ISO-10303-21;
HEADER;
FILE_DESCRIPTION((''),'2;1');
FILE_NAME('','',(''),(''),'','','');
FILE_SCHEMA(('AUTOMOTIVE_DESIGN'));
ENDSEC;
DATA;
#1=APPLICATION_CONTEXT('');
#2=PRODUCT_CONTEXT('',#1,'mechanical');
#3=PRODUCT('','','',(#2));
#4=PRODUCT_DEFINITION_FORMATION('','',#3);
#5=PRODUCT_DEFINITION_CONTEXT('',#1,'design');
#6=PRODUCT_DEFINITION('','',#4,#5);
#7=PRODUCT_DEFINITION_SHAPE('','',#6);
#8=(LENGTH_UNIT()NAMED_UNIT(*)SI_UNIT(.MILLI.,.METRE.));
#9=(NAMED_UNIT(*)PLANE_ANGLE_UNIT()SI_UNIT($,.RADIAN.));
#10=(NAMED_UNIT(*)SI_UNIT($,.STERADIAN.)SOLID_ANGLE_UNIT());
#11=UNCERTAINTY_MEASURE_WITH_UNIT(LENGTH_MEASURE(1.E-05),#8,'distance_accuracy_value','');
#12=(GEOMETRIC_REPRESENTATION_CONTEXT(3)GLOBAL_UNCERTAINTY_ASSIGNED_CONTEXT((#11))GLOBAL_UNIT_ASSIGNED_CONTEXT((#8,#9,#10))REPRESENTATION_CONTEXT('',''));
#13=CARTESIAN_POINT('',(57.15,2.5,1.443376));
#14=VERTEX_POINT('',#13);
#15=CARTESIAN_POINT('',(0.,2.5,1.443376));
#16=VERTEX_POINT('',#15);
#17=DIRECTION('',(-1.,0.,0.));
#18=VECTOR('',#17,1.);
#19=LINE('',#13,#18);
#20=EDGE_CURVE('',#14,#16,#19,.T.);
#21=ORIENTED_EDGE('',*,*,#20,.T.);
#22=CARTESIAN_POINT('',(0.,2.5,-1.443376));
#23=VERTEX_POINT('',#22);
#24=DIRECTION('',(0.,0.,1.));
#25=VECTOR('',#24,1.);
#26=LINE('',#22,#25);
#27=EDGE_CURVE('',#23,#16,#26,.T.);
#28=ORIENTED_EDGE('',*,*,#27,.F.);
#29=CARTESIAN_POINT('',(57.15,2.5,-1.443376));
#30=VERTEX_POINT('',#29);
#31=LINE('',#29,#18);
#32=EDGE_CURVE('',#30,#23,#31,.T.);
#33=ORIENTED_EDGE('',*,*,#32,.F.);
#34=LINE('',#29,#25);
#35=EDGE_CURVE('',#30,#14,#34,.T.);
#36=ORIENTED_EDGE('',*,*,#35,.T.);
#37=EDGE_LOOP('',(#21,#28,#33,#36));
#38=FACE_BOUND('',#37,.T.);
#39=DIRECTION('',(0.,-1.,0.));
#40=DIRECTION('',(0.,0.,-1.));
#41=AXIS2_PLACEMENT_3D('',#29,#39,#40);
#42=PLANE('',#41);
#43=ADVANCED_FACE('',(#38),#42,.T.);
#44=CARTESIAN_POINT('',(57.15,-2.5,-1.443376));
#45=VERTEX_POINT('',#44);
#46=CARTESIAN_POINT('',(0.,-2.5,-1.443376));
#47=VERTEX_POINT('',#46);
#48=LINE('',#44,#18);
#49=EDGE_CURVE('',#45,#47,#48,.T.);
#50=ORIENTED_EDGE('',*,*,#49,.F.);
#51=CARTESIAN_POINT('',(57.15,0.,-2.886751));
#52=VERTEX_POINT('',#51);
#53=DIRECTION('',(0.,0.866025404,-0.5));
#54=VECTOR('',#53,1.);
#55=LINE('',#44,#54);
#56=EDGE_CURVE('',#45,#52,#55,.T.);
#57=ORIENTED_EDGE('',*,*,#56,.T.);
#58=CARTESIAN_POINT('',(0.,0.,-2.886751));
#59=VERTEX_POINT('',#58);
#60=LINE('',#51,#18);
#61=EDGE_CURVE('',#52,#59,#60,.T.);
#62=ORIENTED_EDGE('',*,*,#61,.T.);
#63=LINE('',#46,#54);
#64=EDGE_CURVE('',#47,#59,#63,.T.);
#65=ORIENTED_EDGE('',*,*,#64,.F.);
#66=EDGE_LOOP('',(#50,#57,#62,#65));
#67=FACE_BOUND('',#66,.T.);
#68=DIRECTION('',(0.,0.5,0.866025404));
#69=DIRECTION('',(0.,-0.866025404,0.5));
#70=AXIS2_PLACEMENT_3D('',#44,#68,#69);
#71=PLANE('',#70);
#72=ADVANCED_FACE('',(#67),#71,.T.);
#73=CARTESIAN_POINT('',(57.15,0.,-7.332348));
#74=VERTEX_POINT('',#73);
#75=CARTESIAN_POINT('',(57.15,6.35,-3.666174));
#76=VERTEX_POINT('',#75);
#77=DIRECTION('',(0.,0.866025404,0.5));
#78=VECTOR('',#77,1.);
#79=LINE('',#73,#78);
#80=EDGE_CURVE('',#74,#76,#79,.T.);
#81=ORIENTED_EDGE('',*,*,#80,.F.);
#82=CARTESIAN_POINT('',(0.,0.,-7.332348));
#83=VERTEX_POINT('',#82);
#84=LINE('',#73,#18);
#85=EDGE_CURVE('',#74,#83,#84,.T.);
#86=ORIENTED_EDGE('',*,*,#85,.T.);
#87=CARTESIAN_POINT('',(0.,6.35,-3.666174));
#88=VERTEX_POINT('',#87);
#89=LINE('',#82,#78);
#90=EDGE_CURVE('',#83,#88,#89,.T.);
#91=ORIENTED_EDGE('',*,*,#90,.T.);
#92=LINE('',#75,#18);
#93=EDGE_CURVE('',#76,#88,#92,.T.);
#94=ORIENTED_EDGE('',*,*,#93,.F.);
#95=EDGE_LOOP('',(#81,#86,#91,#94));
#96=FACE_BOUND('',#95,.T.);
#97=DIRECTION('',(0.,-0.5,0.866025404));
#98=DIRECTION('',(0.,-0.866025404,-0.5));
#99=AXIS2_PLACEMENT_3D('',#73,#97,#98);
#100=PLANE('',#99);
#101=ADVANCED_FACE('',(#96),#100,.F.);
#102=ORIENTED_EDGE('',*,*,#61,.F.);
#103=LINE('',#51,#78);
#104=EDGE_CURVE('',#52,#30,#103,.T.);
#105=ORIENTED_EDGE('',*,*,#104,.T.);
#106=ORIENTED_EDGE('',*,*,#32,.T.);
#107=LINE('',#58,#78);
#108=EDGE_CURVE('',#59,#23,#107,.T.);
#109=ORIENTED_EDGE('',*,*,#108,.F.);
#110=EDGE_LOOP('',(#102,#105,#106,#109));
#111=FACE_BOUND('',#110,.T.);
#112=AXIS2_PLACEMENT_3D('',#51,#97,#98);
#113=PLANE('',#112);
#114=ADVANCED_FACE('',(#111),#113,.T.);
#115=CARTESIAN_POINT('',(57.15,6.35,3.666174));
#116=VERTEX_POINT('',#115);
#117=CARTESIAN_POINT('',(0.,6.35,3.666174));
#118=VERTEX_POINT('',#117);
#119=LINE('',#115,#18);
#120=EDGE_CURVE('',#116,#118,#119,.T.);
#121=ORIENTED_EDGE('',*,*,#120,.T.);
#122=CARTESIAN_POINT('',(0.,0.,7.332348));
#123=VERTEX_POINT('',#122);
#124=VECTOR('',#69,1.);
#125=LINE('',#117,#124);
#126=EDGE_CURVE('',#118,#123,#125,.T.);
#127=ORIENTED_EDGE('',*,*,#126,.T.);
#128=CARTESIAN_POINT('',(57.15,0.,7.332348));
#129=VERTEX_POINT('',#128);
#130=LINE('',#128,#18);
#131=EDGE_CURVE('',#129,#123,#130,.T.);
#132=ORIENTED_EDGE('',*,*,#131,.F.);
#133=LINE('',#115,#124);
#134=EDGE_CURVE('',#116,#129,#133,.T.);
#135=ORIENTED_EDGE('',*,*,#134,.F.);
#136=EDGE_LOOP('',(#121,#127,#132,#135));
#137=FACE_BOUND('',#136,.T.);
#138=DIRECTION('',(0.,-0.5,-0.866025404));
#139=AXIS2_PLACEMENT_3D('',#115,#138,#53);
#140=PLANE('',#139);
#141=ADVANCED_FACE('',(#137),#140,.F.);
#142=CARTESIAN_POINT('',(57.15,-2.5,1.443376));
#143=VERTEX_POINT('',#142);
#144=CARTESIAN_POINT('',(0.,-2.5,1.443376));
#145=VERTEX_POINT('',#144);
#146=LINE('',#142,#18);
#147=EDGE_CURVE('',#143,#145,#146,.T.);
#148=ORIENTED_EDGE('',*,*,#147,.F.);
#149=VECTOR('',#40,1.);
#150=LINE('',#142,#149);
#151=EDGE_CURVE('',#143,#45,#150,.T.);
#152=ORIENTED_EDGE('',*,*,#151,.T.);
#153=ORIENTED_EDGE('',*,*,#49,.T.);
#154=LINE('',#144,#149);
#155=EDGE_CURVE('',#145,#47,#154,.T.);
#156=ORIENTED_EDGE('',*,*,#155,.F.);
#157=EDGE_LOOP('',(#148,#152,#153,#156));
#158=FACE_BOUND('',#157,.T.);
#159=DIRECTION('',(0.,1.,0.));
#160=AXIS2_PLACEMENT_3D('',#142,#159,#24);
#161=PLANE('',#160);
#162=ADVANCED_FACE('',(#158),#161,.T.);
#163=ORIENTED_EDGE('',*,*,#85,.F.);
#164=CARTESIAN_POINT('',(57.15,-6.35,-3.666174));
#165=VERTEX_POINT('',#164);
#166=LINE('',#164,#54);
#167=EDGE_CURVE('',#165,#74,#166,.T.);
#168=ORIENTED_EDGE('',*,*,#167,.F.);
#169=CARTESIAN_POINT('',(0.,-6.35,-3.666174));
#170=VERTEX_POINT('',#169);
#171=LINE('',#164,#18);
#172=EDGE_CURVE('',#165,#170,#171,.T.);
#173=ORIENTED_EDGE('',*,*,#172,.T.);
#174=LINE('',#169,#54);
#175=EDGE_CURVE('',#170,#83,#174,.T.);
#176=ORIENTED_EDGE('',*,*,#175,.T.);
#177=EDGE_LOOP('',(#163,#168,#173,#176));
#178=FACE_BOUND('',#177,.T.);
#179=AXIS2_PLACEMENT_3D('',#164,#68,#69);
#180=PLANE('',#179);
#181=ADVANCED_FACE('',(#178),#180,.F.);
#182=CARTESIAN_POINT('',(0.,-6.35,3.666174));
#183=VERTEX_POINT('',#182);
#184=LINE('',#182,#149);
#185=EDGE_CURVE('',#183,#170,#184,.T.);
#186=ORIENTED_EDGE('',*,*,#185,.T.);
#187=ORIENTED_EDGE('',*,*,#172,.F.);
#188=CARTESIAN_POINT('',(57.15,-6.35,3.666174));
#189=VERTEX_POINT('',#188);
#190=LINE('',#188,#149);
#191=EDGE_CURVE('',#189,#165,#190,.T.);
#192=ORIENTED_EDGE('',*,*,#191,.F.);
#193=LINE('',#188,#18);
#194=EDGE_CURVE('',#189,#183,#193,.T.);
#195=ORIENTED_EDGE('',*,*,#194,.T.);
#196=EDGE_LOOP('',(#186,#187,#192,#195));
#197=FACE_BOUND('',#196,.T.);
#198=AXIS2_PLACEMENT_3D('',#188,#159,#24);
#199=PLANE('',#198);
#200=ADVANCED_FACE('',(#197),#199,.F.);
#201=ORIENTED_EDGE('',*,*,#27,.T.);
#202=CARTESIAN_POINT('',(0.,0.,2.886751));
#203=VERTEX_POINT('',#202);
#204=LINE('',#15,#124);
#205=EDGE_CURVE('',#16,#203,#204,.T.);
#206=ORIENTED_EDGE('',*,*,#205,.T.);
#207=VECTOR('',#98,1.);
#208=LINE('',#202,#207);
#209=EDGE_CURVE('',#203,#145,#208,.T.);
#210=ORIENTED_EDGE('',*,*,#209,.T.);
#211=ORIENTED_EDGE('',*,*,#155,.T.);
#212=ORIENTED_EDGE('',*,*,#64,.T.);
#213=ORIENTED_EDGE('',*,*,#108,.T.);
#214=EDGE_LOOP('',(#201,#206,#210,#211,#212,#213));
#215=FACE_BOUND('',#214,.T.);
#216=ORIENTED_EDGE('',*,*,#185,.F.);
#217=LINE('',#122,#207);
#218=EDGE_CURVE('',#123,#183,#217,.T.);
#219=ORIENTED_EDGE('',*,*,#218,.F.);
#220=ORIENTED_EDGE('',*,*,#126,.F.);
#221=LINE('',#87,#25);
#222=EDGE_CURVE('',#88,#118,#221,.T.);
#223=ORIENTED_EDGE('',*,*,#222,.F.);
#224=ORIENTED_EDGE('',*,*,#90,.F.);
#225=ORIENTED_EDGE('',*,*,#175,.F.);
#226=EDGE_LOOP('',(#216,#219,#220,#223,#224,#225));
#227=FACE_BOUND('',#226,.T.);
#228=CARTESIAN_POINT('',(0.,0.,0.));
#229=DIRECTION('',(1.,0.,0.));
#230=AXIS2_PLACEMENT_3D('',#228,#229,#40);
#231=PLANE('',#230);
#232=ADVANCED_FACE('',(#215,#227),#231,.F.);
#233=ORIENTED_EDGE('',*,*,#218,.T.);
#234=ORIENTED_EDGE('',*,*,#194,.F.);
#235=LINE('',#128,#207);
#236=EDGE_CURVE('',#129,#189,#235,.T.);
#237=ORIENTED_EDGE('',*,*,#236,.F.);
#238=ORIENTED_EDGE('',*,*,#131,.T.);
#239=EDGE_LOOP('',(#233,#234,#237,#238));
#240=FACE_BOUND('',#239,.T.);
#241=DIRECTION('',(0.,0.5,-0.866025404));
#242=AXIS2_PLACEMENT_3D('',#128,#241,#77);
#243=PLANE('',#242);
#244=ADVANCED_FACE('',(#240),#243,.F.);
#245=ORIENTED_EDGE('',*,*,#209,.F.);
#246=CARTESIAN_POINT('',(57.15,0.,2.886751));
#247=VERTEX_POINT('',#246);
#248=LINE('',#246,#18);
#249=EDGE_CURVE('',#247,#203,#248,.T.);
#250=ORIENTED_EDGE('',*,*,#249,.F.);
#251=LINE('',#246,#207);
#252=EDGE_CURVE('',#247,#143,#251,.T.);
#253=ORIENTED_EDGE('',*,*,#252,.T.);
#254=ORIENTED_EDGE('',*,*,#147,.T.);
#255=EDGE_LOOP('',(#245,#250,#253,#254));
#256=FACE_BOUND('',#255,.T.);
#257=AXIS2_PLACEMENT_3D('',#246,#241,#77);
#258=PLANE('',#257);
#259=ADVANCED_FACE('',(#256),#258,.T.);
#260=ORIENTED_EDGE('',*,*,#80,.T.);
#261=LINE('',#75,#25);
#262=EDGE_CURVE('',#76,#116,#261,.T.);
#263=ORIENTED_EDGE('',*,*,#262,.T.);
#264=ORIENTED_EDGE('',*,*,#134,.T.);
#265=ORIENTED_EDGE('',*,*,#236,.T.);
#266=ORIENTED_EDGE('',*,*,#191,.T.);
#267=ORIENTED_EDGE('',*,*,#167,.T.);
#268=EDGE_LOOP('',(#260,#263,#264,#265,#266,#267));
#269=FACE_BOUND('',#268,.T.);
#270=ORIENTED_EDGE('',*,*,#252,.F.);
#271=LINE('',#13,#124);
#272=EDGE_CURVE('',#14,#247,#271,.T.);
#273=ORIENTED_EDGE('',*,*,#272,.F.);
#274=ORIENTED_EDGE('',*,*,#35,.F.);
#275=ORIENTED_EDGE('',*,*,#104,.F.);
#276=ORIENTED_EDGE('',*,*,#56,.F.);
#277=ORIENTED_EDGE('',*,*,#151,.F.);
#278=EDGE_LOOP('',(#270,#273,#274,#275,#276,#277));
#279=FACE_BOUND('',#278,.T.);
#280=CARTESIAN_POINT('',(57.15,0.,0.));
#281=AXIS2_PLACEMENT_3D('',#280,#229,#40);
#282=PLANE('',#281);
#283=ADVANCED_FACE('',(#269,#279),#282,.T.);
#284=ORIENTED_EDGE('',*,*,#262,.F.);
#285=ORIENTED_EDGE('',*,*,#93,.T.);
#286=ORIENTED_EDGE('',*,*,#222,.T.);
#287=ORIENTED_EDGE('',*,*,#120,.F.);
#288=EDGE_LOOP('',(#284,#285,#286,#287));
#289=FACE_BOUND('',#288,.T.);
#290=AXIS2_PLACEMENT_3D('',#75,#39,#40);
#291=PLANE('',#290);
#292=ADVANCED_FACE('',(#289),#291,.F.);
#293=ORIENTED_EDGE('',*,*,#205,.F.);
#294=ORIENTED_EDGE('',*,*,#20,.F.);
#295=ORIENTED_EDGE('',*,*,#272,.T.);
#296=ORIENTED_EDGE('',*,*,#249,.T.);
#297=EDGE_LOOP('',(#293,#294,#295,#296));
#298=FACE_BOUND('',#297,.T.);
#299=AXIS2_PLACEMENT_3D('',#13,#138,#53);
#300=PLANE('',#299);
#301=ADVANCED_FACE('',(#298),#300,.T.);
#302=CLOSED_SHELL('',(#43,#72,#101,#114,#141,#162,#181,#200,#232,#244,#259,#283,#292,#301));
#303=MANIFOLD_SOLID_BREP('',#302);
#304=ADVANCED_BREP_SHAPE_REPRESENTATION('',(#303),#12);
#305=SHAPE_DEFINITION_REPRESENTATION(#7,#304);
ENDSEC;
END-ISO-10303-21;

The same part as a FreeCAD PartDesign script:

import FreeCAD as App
import Part
import Sketcher
Q = App.Units.Quantity

doc = App.newDocument("Part")
params = doc.addObject("Spreadsheet::Sheet", "Params")
for row, (alias, value) in enumerate([
    ("pad1_length", "2.25 in"),
], start=1):
    params.set(f"A{row}", alias)
    params.set(f"B{row}", "=" + value)
    params.setAlias(f"B{row}", alias)

body = doc.addObject("PartDesign::Body", "Body")

# Sketch on YZ plane
sketch1 = body.newObject("Sketcher::SketchObject", "Sketch")
sketch1.AttachmentSupport = (doc.getObject("YZ_Plane"), [""])
sketch1.MapMode = "FlatFace"
sketch1.addGeometry(Part.LineSegment(App.Vector(0, -7.3, 0), App.Vector(6.3, -3.7, 0)), False)
sketch1.addGeometry(Part.LineSegment(App.Vector(6.3, -3.7, 0), App.Vector(6.3, 3.7, 0)), False)
sketch1.addGeometry(Part.LineSegment(App.Vector(6.3, 3.7, 0), App.Vector(0, 7.3, 0)), False)
sketch1.addGeometry(Part.LineSegment(App.Vector(0, 7.3, 0), App.Vector(-6.3, 3.7, 0)), False)
sketch1.addGeometry(Part.LineSegment(App.Vector(-6.3, 3.7, 0), App.Vector(-6.3, -3.7, 0)), False)
sketch1.addGeometry(Part.LineSegment(App.Vector(-6.3, -3.7, 0), App.Vector(0, -7.3, 0)), False)
sketch1.addGeometry(Part.LineSegment(App.Vector(2.5, -1.4, 0), App.Vector(0, -2.9, 0)), False)
sketch1.addGeometry(Part.LineSegment(App.Vector(0, -2.9, 0), App.Vector(-2.5, -1.4, 0)), False)
sketch1.addGeometry(Part.LineSegment(App.Vector(-2.5, -1.4, 0), App.Vector(-2.5, 1.4, 0)), False)
sketch1.addGeometry(Part.LineSegment(App.Vector(-2.5, 1.4, 0), App.Vector(0, 2.9, 0)), False)
sketch1.addGeometry(Part.LineSegment(App.Vector(0, 2.9, 0), App.Vector(2.5, 1.4, 0)), False)
sketch1.addGeometry(Part.LineSegment(App.Vector(2.5, 1.4, 0), App.Vector(2.5, -1.4, 0)), False)
sketch1.addConstraint(Sketcher.Constraint("Coincident", 0, 2, 1, 1))
sketch1.addConstraint(Sketcher.Constraint("Coincident", 1, 2, 2, 1))
sketch1.addConstraint(Sketcher.Constraint("Coincident", 2, 2, 3, 1))
sketch1.addConstraint(Sketcher.Constraint("Coincident", 3, 2, 4, 1))
sketch1.addConstraint(Sketcher.Constraint("Coincident", 4, 2, 5, 1))
sketch1.addConstraint(Sketcher.Constraint("Coincident", 5, 2, 0, 1))
sketch1.addConstraint(Sketcher.Constraint("Coincident", 6, 2, 7, 1))
sketch1.addConstraint(Sketcher.Constraint("Coincident", 7, 2, 8, 1))
sketch1.addConstraint(Sketcher.Constraint("Coincident", 8, 2, 9, 1))
sketch1.addConstraint(Sketcher.Constraint("Coincident", 9, 2, 10, 1))
sketch1.addConstraint(Sketcher.Constraint("Coincident", 10, 2, 11, 1))
sketch1.addConstraint(Sketcher.Constraint("Coincident", 11, 2, 6, 1))
sketch1.addConstraint(Sketcher.Constraint("Vertical", 1))
sketch1.addConstraint(Sketcher.Constraint("Vertical", 4))
sketch1.addConstraint(Sketcher.Constraint("Vertical", 8))
sketch1.addConstraint(Sketcher.Constraint("Vertical", 11))
sketch1.addConstraint(Sketcher.Constraint("Symmetric", 0, 2, 3, 2, -1, 1))
sketch1.addConstraint(Sketcher.Constraint("Symmetric", 2, 2, 5, 2, -1, 1))
sketch1.addConstraint(Sketcher.Constraint("Symmetric", 6, 2, 9, 2, -1, 1))
sketch1.addConstraint(Sketcher.Constraint("Symmetric", 7, 2, 10, 2, -1, 1))
sketch1.addConstraint(Sketcher.Constraint("PointOnObject", 2, 2, -2))
sketch1.addConstraint(Sketcher.Constraint("PointOnObject", 6, 2, -2))
sketch1.addConstraint(Sketcher.Constraint("Parallel", 2, 5))
sketch1.addConstraint(Sketcher.Constraint("Parallel", 3, 6))
sketch1.addConstraint(Sketcher.Constraint("Parallel", 5, 7))
sketch1.addConstraint(Sketcher.Constraint("Parallel", 6, 9))
sketch1.addConstraint(Sketcher.Constraint("Horizontal", 1, 2, 3, 2))
sketch1.addConstraint(Sketcher.Constraint("Angle", 0, Q("30 deg")))
sketch1.addConstraint(Sketcher.Constraint("DistanceX", 3, 2, 1, 2, Q("0.5 in")))
sketch1.addConstraint(Sketcher.Constraint("DistanceY", 1, 1, 1, 2, 7.332348))
sketch1.addConstraint(Sketcher.Constraint("DistanceY", 8, 1, 8, 2, 2.886751))
sketch1.addConstraint(Sketcher.Constraint("DistanceX", 7, 2, -1, 1, 2.5))
pad1 = body.newObject("PartDesign::Pad", "Pad")
pad1.Profile = sketch1
pad1.setExpression("Length", "Params.pad1_length")

doc.recompute()
